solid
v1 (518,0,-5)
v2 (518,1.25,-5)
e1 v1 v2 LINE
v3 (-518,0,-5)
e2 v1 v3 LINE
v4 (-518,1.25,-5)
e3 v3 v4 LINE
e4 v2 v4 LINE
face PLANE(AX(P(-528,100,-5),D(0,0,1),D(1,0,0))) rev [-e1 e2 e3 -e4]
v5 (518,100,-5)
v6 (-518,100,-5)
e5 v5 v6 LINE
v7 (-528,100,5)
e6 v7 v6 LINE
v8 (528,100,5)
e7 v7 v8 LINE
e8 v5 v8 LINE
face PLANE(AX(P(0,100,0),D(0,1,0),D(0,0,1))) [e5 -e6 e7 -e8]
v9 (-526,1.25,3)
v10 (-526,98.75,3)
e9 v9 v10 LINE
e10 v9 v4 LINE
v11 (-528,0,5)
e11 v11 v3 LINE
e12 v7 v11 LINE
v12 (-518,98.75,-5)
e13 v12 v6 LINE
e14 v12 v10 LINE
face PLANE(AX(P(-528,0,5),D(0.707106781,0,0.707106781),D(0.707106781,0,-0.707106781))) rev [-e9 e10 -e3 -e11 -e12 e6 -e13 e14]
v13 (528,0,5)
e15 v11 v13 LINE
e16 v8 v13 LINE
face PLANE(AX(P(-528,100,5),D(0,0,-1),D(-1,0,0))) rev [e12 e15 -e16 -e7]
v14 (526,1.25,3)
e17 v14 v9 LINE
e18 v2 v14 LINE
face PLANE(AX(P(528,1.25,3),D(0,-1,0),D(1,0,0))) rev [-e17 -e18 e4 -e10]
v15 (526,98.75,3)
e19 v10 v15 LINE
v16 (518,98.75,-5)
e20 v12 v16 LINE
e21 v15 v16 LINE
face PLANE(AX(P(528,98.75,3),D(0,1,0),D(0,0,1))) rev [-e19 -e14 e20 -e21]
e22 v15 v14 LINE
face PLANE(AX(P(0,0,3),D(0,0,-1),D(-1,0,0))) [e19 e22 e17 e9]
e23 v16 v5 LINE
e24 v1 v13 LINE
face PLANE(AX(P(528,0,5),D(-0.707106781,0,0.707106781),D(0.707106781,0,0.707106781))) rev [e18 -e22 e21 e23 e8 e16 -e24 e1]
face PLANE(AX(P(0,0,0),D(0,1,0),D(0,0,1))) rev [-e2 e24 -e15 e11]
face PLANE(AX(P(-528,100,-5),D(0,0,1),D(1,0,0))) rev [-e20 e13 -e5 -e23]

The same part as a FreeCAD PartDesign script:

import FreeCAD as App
import Part
import Sketcher
Q = App.Units.Quantity


def add_polygon(sketch, points):
    """Adds a closed chain of lines whose ends are joined by coincident constraints."""
    first, n = sketch.GeometryCount, len(points)
    for a, b in zip(points, points[1:] + points[:1]):
        sketch.addGeometry(Part.LineSegment(App.Vector(*a, 0), App.Vector(*b, 0)), False)
    for i in range(n):
        sketch.addConstraint(Sketcher.Constraint("Coincident", first + i, 2, first + (i + 1) % n, 1))

doc = App.newDocument("Part")
body = doc.addObject("PartDesign::Body", "Body")

sketch1 = doc.addObject("Sketcher::SketchObject", "Sketch")
body.addObject(sketch1)
sketch1.AttachmentSupport = (doc.XZ_Plane, [""])
sketch1.MapMode = "FlatFace"
add_polygon(sketch1, [(-528, -5), (-528, 5), (528, 5), (528, -5)])
sketch1.addConstraint([
    Sketcher.Constraint("Vertical", 0),
    Sketcher.Constraint("Horizontal", 1),
    Sketcher.Constraint("Vertical", 2),
    Sketcher.Constraint("Horizontal", 3),
    Sketcher.Constraint("Symmetric", 0, 2, 2, 2, -1, 1),
    Sketcher.Constraint("DistanceX", 1, 1, 1, 2, Q("1056 mm")),
    Sketcher.Constraint("DistanceY", 0, 1, 0, 2, Q("10 mm")),
])
pad1 = doc.addObject("PartDesign::Pad", "Pad")
body.addObject(pad1)
pad1.Profile = sketch1
pad1.Length = 100
pad1.Reversed = True

sketch2 = doc.addObject("Sketcher::SketchObject", "Sketch001")
body.addObject(sketch2)
sketch2.AttachmentSupport = (doc.XZ_Plane, [""])
sketch2.MapMode = "FlatFace"
sketch2.AttachmentOffset = App.Placement(App.Vector(0, 0, -100), App.Rotation())
add_polygon(sketch2, [(-528, 5), (-518, -5), (-528, -5)])
add_polygon(sketch2, [(528, -5), (518, -5), (528, 5)])
sketch2.addConstraint([
    Sketcher.Constraint("Horizontal", 1),
    Sketcher.Constraint("Vertical", 2),
    Sketcher.Constraint("Horizontal", 3),
    Sketcher.Constraint("Vertical", 5),
    Sketcher.Constraint("Symmetric", 1, 2, 4, 2, -1, 1),
    Sketcher.Constraint("Symmetric", 0, 2, 3, 2, -2),
    Sketcher.Constraint("Perpendicular", 0, 4),
    Sketcher.Constraint("Horizontal", 2, 2, 4, 2),
    Sketcher.Constraint("DistanceX", 1, 2, 1, 1, Q("10 mm")),
    Sketcher.Constraint("DistanceX", 0, 2, -1, 1, Q("518 mm")),
])
pocket1 = doc.addObject("PartDesign::Pocket", "Pocket")
body.addObject(pocket1)
pocket1.Profile = sketch2
pocket1.Length = 100
pocket1.Reversed = True

sketch3 = doc.addObject("Sketcher::SketchObject", "Sketch002")
body.addObject(sketch3)
sketch3.AttachmentSupport = (doc.XY_Plane, [""])
sketch3.MapMode = "FlatFace"
sketch3.AttachmentOffset = App.Placement(App.Vector(0, 0, -5), App.Rotation())
add_polygon(sketch3, [(528, 99), (528, 1), (-528, 1), (-528, 99)])
sketch3.addConstraint([
    Sketcher.Constraint("Vertical", 0),
    Sketcher.Constraint("Horizontal", 1),
    Sketcher.Constraint("Vertical", 2),
    Sketcher.Constraint("Horizontal", 3),
    Sketcher.Constraint("DistanceX", 1, 2, 1, 1, Q("1056 mm")),
    Sketcher.Constraint("DistanceY", 0, 2, 0, 1, Q("97.5 mm")),
    Sketcher.Constraint("DistanceX", -1, 1, 0, 2, Q("528 mm")),
    Sketcher.Constraint("DistanceY", -1, 1, 0, 2, Q("1.25 mm")),
])
pocket2 = doc.addObject("PartDesign::Pocket", "Pocket001")
body.addObject(pocket2)
pocket2.Profile = sketch3
pocket2.Length = 8
pocket2.Reversed = True

doc.recompute()
